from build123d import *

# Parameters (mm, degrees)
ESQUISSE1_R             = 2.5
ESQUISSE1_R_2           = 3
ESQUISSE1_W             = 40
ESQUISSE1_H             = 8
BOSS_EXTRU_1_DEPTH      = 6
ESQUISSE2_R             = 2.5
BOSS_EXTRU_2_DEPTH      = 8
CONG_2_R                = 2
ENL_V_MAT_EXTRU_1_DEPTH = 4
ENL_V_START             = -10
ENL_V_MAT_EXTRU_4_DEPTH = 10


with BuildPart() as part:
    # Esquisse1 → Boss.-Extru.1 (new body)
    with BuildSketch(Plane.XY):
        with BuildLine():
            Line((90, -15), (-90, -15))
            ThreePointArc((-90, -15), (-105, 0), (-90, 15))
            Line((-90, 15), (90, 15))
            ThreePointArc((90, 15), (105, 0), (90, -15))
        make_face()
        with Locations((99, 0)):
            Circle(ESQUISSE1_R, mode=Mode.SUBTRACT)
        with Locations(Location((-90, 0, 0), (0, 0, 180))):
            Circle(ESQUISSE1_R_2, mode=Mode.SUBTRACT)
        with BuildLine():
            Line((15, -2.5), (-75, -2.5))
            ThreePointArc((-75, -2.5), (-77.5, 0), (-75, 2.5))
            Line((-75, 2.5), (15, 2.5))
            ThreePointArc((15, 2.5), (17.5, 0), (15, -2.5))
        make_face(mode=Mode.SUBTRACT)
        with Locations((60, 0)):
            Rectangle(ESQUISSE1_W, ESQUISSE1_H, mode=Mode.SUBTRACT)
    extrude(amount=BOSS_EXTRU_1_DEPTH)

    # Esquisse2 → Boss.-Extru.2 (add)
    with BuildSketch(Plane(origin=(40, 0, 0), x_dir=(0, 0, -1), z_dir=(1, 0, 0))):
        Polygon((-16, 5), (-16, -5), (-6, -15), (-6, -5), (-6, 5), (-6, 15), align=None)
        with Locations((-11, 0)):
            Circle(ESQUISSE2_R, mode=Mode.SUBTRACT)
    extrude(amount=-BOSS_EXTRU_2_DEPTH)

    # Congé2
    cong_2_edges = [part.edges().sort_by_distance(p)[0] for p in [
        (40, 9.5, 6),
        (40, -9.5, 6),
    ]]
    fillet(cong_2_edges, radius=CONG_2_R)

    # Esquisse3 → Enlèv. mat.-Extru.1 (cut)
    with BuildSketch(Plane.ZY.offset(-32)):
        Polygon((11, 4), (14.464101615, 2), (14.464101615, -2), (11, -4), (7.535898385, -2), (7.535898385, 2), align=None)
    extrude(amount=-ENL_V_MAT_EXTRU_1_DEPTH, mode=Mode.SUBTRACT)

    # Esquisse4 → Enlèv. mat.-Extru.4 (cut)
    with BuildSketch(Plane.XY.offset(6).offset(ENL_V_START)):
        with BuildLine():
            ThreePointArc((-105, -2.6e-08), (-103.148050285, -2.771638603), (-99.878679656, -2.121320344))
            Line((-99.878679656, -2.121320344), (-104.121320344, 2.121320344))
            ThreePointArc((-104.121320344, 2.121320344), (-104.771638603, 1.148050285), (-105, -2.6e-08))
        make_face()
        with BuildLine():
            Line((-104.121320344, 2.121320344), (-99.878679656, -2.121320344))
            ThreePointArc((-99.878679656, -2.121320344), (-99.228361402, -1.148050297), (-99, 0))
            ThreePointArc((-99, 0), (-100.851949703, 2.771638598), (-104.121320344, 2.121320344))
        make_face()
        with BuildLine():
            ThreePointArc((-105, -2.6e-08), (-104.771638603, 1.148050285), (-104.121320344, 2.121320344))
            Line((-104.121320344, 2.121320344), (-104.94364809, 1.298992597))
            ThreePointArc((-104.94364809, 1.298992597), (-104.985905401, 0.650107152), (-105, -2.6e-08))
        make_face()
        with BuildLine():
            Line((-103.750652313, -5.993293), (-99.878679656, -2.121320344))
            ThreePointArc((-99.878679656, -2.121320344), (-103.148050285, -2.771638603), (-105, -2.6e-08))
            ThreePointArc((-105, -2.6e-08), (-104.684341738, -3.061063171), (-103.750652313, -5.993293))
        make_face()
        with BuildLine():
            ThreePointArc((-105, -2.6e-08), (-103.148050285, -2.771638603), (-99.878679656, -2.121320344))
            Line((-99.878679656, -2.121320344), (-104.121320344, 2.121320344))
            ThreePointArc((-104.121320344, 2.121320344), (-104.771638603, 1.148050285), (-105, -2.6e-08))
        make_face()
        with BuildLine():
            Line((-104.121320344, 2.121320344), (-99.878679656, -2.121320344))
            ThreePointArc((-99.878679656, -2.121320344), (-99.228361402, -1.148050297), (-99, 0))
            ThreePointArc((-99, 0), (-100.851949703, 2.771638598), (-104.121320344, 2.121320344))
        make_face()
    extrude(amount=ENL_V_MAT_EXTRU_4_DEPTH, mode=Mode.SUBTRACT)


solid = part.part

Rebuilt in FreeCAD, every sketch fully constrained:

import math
import FreeCAD as App
import Part
import Sketcher

V = App.Vector
Q = App.Units.Quantity


def edges_at(feature, points):
    """Names of the edges that pass closest to the given points."""
    edges = feature.Shape.Edges
    near = lambda p: min(range(len(edges)), key=lambda i: edges[i].distToShape(Part.Vertex(*p))[0])
    return sorted({f"Edge{near(p) + 1}" for p in points})

doc = App.newDocument("Part")
body = doc.addObject("PartDesign::Body", "Body")

# Sketch on XY plane
sketch1 = body.newObject("Sketcher::SketchObject", "Sketch")
sketch1.AttachmentSupport = (doc.getObject("XY_Plane"), [""])
sketch1.MapMode = "FlatFace"
sketch1.addGeometry([
    Part.LineSegment(V(-90, -15, 0), V(90, -15, 0)),  # 0
    Part.ArcOfCircle(Part.Circle(V(90, 0, 0), V(0, 0, 1), 15), math.radians(-90), math.radians(90)),  # 1
    Part.LineSegment(V(90, 15, 0), V(-90, 15, 0)),  # 2
    Part.ArcOfCircle(Part.Circle(V(-90, 0, 0), V(0, 0, 1), 15), math.radians(90), math.radians(270)),  # 3
    Part.Circle(V(99, 0, 0), V(0, 0, 1), 2.5),  # 4
    Part.LineSegment(V(40, -4, 0), V(40, 4, 0)),  # 5
    Part.LineSegment(V(40, 4, 0), V(80, 4, 0)),  # 6
    Part.LineSegment(V(80, 4, 0), V(80, -4, 0)),  # 7
    Part.LineSegment(V(80, -4, 0), V(40, -4, 0)),  # 8
    Part.LineSegment(V(15, -2.5, 0), V(-75, -2.5, 0)),  # 9
    Part.ArcOfCircle(Part.Circle(V(-75, 0, 0), V(0, 0, 1), 2.5), math.radians(90), math.radians(270)),  # 10
    Part.LineSegment(V(-75, 2.5, 0), V(15, 2.5, 0)),  # 11
    Part.ArcOfCircle(Part.Circle(V(15, 0, 0), V(0, 0, 1), 2.5), math.radians(-90), math.radians(90)),  # 12
    Part.Circle(V(-90, 0, 0), V(0, 0, 1), 3),  # 13
], False)
sketch1.addConstraint([
    Sketcher.Constraint("Tangent", 0, 2, 1, 1),
    Sketcher.Constraint("Tangent", 1, 2, 2, 1),
    Sketcher.Constraint("Tangent", 2, 2, 3, 1),
    Sketcher.Constraint("Tangent", 3, 2, 0, 1),
    Sketcher.Constraint("Coincident", 5, 2, 6, 1),
    Sketcher.Constraint("Coincident", 6, 2, 7, 1),
    Sketcher.Constraint("Coincident", 7, 2, 8, 1),
    Sketcher.Constraint("Coincident", 8, 2, 5, 1),
    Sketcher.Constraint("Tangent", 9, 2, 10, 2),
    Sketcher.Constraint("Tangent", 10, 1, 11, 1),
    Sketcher.Constraint("Tangent", 11, 2, 12, 2),
    Sketcher.Constraint("Tangent", 12, 1, 9, 1),
    Sketcher.Constraint("Horizontal", 0),
    Sketcher.Constraint("Horizontal", 2),
    Sketcher.Constraint("Vertical", 5),
    Sketcher.Constraint("Horizontal", 6),
    Sketcher.Constraint("Vertical", 7),
    Sketcher.Constraint("Horizontal", 8),
    Sketcher.Constraint("Horizontal", 9),
    Sketcher.Constraint("Horizontal", 11),
    Sketcher.Constraint("Coincident", 13, 3, 3, 3),
    Sketcher.Constraint("Equal", 4, 10),
    Sketcher.Constraint("Symmetric", 1, 3, 3, 3, -1, 1),
    Sketcher.Constraint("PointOnObject", 4, 3, -1),
    Sketcher.Constraint("PointOnObject", 10, 3, -1),
    Sketcher.Constraint("Diameter", 4, 5.0),
    Sketcher.Constraint("Diameter", 13, 6.0),
    Sketcher.Constraint("Radius", 1, 15.0),
    Sketcher.Constraint("DistanceX", 0, 1, 0, 2, 180.0),
    Sketcher.Constraint("DistanceX", 6, 1, 6, 2, 40.0),
    Sketcher.Constraint("DistanceX", 9, 2, 9, 1, 90.0),
    Sketcher.Constraint("DistanceY", 5, 1, 5, 2, 8.0),
    Sketcher.Constraint("DistanceX", -1, 1, 4, 3, 99.0),
    Sketcher.Constraint("DistanceX", 10, 3, -1, 1, 75.0),
    Sketcher.Constraint("DistanceX", -1, 1, 5, 2, 40.0),
    Sketcher.Constraint("DistanceY", -1, 1, 5, 2, 4.0),
])
pad1 = body.newObject("PartDesign::Pad", "Pad")
pad1.Profile = sketch1
pad1.Length = 6

# Sketch on YZ plane
sketch2 = body.newObject("Sketcher::SketchObject", "Sketch001")
sketch2.AttachmentSupport = (doc.getObject("YZ_Plane"), [""])
sketch2.MapMode = "FlatFace"
sketch2.AttachmentOffset = App.Placement(V(0, 0, 40), App.Rotation())
sketch2.addGeometry([
    Part.LineSegment(V(5, 16, 0), V(-5, 16, 0)),  # 0
    Part.LineSegment(V(-5, 16, 0), V(-15, 6, 0)),  # 1
    Part.LineSegment(V(-15, 6, 0), V(15, 6, 0)),  # 2
    Part.LineSegment(V(15, 6, 0), V(5, 16, 0)),  # 3
    Part.Circle(V(0, 11, 0), V(0, 0, 1), 2.5),  # 4
], False)
sketch2.addConstraint([
    Sketcher.Constraint("Coincident", 0, 2, 1, 1),
    Sketcher.Constraint("Coincident", 1, 2, 2, 1),
    Sketcher.Constraint("Coincident", 2, 2, 3, 1),
    Sketcher.Constraint("Coincident", 3, 2, 0, 1),
    Sketcher.Constraint("Horizontal", 0),
    Sketcher.Constraint("Horizontal", 2),
    Sketcher.Constraint("PointOnObject", 4, 3, -2),
    Sketcher.Constraint("Perpendicular", 1, 3),
    Sketcher.Constraint("Equal", 1, 3),
    Sketcher.Constraint("Diameter", 4, 5.0),
    Sketcher.Constraint("DistanceX", 0, 2, 0, 1, 10.0),
    Sketcher.Constraint("DistanceX", 2, 1, 2, 2, 30.0),
    Sketcher.Constraint("DistanceY", -1, 1, 4, 3, 11.0),
    Sketcher.Constraint("DistanceX", 0, 2, -1, 1, 5.0),
    Sketcher.Constraint("DistanceY", -1, 1, 0, 2, 16.0),
])
pad2 = body.newObject("PartDesign::Pad", "Pad001")
pad2.Profile = sketch2
pad2.Length = 8
pad2.Reversed = True
doc.recompute()

fillet = body.newObject("PartDesign::Fillet", "Fillet")
fillet.Base = (pad2, edges_at(pad2, [(40, 9.5, 6), (40, -9.5, 6)]))
fillet.Radius = 2

# Sketch on YZ plane
sketch3 = body.newObject("Sketcher::SketchObject", "Sketch002")
sketch3.AttachmentSupport = (doc.getObject("YZ_Plane"), [""])
sketch3.MapMode = "FlatFace"
sketch3.AttachmentOffset = App.Placement(V(0, 0, 32), App.Rotation())
sketch3.addGeometry([
    Part.LineSegment(V(2, 14.5, 0), V(4, 11, 0)),  # 0
    Part.LineSegment(V(4, 11, 0), V(2, 7.5, 0)),  # 1
    Part.LineSegment(V(2, 7.5, 0), V(-2, 7.5, 0)),  # 2
    Part.LineSegment(V(-2, 7.5, 0), V(-4, 11, 0)),  # 3
    Part.LineSegment(V(-4, 11, 0), V(-2, 14.5, 0)),  # 4
    Part.LineSegment(V(-2, 14.5, 0), V(2, 14.5, 0)),  # 5
], False)
sketch3.addConstraint([
    Sketcher.Constraint("Coincident", 0, 2, 1, 1),
    Sketcher.Constraint("Coincident", 1, 2, 2, 1),
    Sketcher.Constraint("Coincident", 2, 2, 3, 1),
    Sketcher.Constraint("Coincident", 3, 2, 4, 1),
    Sketcher.Constraint("Coincident", 4, 2, 5, 1),
    Sketcher.Constraint("Coincident", 5, 2, 0, 1),
    Sketcher.Constraint("Horizontal", 2),
    Sketcher.Constraint("Horizontal", 5),
    Sketcher.Constraint("Symmetric", 0, 2, 3, 2, -2),
    Sketcher.Constraint("Parallel", 0, 3),
    Sketcher.Constraint("Parallel", 1, 4),
    Sketcher.Constraint("Vertical", 2, 2, 4, 2),
    Sketcher.Constraint("Vertical", 1, 2, 5, 2),
    Sketcher.Constraint("DistanceX", 2, 2, 2, 1, 4.0),
    Sketcher.Constraint("Angle", 0, Q("-60 deg")),
    Sketcher.Constraint("Distance", 0, 4.0),
    Sketcher.Constraint("DistanceY", -1, 1, 0, 2, 11.0),
])
pocket1 = body.newObject("PartDesign::Pocket", "Pocket")
pocket1.Profile = sketch3
pocket1.Length = 4
pocket1.Reversed = True

# Sketch on XY plane
sketch4 = body.newObject("Sketcher::SketchObject", "Sketch003")
sketch4.AttachmentSupport = (doc.getObject("XY_Plane"), [""])
sketch4.MapMode = "FlatFace"
sketch4.AttachmentOffset = App.Placement(V(0, 0, -4), App.Rotation())
sketch4.addGeometry([
    Part.ArcOfCircle(Part.Circle(V(-102, 0, 0), V(0, 0, 1), 3), math.radians(-45), math.radians(0)),  # 0
    Part.ArcOfCircle(Part.Circle(V(-102, 0, 0), V(0, 0, 1), 3), math.radians(0), math.radians(135)),  # 1
    Part.LineSegment(V(-104.1, 2.1, 0), V(-104.9, 1.3, 0)),  # 2
    Part.ArcOfCircle(Part.Circle(V(-90, 0, 0), V(0, 0, 1), 15), math.radians(175.03), math.radians(180)),  # 3
    Part.ArcOfCircle(Part.Circle(V(-90, 0, 0), V(0, 0, 1), 15), math.radians(-180), math.radians(-156)),  # 4
    Part.LineSegment(V(-103.8, -6, 0), V(-99.9, -2.1, 0)),  # 5
], False)
sketch4.addConstraint([
    Sketcher.Constraint("Tangent", 0, 2, 1, 1),
    Sketcher.Constraint("Tangent", 1, 2, 2, 1),
    Sketcher.Constraint("Coincident", 2, 2, 3, 1),
    Sketcher.Constraint("Tangent", 3, 2, 4, 1),
    Sketcher.Constraint("Coincident", 4, 2, 5, 1),
    Sketcher.Constraint("Tangent", 5, 2, 0, 1),
    Sketcher.Constraint("Equal", 0, 1),
    Sketcher.Constraint("Equal", 3, 4),
    Sketcher.Constraint("PointOnObject", 0, 3, -1),
    Sketcher.Constraint("PointOnObject", 3, 3, -1),
    Sketcher.Constraint("PointOnObject", 0, 2, -1),
    Sketcher.Constraint("PointOnObject", 3, 2, -1),
    Sketcher.Constraint("Parallel", 2, 5),
    Sketcher.Constraint("Radius", 0, 3.0),
    Sketcher.Constraint("Radius", 3, 15.0),
    Sketcher.Constraint("Angle", 2, Q("-135 deg")),
    Sketcher.Constraint("DistanceX", 0, 3, -1, 1, 102.0),
    Sketcher.Constraint("DistanceX", 3, 3, -1, 1, 90.0),
])
pocket2 = body.newObject("PartDesign::Pocket", "Pocket001")
pocket2.Profile = sketch4
pocket2.Length = 10
pocket2.Reversed = True

doc.recompute()
